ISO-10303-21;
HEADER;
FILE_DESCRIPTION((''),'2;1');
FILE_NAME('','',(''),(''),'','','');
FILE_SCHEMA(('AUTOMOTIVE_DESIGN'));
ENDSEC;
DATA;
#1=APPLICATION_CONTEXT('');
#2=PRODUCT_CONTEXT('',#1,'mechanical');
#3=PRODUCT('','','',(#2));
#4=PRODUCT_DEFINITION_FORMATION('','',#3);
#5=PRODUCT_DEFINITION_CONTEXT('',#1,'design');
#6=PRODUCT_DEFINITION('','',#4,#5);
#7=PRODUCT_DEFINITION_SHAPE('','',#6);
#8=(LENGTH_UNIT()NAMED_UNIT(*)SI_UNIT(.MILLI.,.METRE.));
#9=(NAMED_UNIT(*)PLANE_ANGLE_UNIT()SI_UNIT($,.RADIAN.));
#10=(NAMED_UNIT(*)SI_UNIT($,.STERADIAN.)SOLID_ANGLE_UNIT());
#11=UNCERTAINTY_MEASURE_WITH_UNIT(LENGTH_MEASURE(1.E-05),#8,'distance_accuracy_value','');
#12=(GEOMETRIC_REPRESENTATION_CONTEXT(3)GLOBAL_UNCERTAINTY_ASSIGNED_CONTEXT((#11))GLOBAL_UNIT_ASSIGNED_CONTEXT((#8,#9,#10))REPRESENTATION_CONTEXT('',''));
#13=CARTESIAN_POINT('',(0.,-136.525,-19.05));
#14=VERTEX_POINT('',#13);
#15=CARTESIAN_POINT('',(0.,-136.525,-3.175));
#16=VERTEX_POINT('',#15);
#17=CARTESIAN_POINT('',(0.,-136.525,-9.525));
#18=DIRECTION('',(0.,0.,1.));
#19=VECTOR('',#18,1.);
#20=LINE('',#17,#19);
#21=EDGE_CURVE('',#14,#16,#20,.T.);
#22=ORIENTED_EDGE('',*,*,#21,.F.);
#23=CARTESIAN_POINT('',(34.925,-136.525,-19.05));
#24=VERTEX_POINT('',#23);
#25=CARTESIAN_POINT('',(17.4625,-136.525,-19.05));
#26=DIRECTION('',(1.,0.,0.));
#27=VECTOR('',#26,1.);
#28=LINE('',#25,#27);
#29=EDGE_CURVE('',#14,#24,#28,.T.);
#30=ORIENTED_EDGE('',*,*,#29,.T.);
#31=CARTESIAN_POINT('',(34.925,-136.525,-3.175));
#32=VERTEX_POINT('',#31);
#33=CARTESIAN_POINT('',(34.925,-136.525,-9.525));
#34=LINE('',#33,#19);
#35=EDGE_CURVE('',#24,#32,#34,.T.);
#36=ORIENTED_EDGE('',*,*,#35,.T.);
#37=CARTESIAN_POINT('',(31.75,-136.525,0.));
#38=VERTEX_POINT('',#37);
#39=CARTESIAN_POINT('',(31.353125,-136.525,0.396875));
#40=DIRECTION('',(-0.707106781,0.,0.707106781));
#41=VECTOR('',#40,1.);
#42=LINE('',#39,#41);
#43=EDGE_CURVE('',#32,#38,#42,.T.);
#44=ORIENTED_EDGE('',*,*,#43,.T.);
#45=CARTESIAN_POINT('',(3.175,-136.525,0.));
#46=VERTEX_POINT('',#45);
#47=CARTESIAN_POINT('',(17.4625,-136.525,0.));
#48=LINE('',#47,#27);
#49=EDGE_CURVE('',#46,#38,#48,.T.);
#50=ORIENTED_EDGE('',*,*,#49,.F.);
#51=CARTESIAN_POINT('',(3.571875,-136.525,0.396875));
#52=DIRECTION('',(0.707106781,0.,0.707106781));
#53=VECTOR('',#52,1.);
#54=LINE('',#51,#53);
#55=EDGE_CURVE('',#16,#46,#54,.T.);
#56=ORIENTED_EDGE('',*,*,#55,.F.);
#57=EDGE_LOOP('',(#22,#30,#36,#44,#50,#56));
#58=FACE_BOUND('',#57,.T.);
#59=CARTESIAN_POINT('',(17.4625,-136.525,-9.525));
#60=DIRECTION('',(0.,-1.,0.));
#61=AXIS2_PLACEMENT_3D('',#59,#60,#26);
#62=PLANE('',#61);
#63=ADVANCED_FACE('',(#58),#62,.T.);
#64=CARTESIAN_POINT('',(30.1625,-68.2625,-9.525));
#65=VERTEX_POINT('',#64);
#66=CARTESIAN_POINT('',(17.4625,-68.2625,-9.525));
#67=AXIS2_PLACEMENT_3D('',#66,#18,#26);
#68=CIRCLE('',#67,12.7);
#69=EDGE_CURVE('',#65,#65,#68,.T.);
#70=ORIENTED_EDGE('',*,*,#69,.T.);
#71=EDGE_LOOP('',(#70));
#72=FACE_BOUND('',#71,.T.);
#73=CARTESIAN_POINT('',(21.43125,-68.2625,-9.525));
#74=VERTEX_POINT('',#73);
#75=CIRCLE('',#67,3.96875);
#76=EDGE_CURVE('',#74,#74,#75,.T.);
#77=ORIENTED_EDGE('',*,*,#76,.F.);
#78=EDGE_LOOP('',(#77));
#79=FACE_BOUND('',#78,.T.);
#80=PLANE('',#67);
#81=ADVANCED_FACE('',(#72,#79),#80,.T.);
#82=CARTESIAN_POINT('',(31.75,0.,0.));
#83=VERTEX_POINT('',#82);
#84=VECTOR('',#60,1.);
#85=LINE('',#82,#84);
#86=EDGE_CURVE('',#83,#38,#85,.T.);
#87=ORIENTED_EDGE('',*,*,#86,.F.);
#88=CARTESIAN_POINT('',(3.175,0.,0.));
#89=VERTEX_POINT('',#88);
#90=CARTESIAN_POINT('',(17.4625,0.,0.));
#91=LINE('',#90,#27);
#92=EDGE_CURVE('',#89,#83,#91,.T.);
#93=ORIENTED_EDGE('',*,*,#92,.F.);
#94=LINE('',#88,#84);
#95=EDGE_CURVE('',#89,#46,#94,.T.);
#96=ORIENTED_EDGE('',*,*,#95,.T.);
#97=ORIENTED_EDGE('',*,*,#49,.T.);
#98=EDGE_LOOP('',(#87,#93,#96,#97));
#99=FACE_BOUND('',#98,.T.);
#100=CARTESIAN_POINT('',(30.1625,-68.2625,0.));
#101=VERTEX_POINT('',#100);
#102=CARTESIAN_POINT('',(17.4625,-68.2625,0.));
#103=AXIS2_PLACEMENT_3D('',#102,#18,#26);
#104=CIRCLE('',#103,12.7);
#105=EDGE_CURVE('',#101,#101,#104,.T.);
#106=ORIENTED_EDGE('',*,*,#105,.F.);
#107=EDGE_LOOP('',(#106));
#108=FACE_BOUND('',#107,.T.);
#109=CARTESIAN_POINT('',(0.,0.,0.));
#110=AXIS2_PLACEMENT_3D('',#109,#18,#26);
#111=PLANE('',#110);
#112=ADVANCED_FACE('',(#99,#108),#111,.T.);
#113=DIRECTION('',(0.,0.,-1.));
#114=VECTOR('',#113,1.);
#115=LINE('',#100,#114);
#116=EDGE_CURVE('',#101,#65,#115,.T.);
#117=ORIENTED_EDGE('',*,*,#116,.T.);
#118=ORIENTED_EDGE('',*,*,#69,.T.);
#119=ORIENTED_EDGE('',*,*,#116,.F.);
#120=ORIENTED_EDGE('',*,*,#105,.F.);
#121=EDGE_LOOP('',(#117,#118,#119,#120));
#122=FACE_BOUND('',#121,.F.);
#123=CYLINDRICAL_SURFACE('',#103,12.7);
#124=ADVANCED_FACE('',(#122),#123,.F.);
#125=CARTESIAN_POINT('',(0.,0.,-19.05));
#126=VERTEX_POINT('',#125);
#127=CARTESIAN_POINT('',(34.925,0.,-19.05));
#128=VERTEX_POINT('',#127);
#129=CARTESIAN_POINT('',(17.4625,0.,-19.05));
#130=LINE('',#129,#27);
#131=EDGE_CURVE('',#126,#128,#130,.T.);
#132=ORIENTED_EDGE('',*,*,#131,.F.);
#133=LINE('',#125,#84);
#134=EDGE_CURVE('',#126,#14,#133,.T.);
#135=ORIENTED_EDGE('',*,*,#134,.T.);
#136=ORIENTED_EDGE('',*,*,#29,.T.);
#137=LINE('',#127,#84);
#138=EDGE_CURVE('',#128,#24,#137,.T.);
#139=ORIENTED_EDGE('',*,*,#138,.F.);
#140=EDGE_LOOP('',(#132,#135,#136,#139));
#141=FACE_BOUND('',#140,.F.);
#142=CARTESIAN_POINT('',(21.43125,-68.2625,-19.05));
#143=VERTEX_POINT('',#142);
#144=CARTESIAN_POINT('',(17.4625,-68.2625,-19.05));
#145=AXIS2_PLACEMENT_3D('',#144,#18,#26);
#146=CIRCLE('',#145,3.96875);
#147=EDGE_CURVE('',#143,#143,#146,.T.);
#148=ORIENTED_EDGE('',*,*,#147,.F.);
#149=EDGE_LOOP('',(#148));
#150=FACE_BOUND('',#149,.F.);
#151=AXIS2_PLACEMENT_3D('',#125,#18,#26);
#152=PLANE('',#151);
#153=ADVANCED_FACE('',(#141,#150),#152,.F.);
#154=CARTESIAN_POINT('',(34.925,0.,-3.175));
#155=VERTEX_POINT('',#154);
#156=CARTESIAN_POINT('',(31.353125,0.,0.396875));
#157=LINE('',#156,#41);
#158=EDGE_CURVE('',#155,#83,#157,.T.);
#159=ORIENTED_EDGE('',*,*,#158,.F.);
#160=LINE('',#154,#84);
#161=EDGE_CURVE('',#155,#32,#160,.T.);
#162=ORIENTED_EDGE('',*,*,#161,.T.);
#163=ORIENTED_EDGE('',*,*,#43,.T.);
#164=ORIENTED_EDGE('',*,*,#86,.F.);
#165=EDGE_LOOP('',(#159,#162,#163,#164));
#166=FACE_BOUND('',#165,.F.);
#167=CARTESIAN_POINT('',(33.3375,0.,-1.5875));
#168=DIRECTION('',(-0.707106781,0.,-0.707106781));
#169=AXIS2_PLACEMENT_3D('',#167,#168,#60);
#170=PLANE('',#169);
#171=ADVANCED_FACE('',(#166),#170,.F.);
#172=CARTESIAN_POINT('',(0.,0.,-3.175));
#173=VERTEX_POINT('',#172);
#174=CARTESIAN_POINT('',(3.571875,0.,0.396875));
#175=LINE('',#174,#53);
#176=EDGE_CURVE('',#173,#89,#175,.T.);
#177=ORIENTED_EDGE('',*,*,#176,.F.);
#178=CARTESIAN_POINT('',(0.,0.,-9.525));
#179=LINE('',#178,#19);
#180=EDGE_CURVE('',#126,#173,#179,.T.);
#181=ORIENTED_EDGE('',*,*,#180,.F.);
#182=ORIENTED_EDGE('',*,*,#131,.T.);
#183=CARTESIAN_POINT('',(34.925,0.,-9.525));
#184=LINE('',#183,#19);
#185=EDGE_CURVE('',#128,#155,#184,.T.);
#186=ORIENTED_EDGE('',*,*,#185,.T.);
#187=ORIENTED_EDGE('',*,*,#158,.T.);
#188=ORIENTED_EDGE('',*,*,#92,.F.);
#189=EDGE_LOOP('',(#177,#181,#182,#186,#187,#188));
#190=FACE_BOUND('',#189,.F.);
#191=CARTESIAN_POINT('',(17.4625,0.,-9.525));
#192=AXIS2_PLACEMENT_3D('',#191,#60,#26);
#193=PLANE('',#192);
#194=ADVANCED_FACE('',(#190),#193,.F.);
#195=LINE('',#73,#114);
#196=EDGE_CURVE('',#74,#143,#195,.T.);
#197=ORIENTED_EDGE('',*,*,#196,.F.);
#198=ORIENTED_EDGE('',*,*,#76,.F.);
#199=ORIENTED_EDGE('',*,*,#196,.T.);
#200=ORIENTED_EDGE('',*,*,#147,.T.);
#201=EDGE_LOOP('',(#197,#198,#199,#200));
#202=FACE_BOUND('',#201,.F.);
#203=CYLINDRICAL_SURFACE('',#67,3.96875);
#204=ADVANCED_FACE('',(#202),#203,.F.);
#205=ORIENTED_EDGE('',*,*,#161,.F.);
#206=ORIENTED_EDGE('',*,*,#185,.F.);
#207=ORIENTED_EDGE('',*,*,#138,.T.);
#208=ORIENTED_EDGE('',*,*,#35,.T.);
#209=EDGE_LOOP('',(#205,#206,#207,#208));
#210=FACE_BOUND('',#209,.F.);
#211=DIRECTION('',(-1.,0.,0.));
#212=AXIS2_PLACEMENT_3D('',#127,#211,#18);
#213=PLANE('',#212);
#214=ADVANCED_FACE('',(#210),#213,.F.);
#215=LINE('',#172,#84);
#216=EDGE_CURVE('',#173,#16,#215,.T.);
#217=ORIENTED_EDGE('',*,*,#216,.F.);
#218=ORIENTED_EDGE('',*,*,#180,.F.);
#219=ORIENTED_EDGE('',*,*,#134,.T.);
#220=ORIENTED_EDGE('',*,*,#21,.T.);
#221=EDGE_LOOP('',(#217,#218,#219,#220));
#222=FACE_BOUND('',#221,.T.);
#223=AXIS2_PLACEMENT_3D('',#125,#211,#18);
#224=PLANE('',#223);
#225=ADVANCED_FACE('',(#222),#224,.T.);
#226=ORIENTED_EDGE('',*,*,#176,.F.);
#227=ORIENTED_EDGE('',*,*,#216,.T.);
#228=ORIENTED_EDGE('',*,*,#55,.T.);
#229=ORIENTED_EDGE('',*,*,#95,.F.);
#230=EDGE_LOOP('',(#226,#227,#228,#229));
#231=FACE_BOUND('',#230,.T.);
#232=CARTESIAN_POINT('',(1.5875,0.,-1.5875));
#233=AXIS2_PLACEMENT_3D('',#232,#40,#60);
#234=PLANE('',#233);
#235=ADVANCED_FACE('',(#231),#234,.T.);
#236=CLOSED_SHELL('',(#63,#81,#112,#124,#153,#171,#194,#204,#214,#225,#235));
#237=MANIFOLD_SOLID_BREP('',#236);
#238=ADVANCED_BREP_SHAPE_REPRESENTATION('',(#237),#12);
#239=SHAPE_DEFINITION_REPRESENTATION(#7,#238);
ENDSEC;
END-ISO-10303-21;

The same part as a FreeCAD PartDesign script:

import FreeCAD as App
import Part
import Sketcher

V = App.Vector
Q = App.Units.Quantity


def edges_at(feature, points):
    """Names of the edges that pass closest to the given points."""
    edges = feature.Shape.Edges
    near = lambda p: min(range(len(edges)), key=lambda i: edges[i].distToShape(Part.Vertex(*p))[0])
    return sorted({f"Edge{near(p) + 1}" for p in points})


def add_polygon(sketch, points):
    """Adds a closed chain of lines whose ends are joined by coincident constraints."""
    first, n = sketch.GeometryCount, len(points)
    for a, b in zip(points, points[1:] + points[:1]):
        sketch.addGeometry(Part.LineSegment(App.Vector(*a, 0), App.Vector(*b, 0)), False)
    for i in range(n):
        sketch.addConstraint(Sketcher.Constraint("Coincident", first + i, 2, first + (i + 1) % n, 1))

doc = App.newDocument("Part")
body = doc.addObject("PartDesign::Body", "Body")

# Sketch on XZ plane
sketch1 = body.newObject("Sketcher::SketchObject", "Sketch")
sketch1.AttachmentSupport = (doc.getObject("XZ_Plane"), [""])
sketch1.MapMode = "FlatFace"
add_polygon(sketch1, [(0, 0), (0, -19), (35, -19), (35, 0)])  # lines 0-3
sketch1.addConstraint([
    Sketcher.Constraint("Vertical", 0),
    Sketcher.Constraint("Horizontal", 1),
    Sketcher.Constraint("Vertical", 2),
    Sketcher.Constraint("Horizontal", 3),
    Sketcher.Constraint("Coincident", 3, 2, -1, 1),
    Sketcher.Constraint("DistanceY", 0, 2, 0, 1, Q("0.75 in")),
    Sketcher.Constraint("DistanceX", 1, 1, 1, 2, Q("1.375 in")),
])
pad1 = body.newObject("PartDesign::Pad", "Pad")
pad1.Profile = sketch1
pad1.Length = Q("5.375 in")
doc.recompute()

chamfer = body.newObject("PartDesign::Chamfer", "Chamfer")
chamfer.Base = (pad1, edges_at(pad1, [(34.925, -68.263, 0), (0, -68.263, 0)]))
chamfer.Size = Q("0.125 in")

# Sketch on XY plane
sketch2 = body.newObject("Sketcher::SketchObject", "Sketch001")
sketch2.AttachmentSupport = (doc.getObject("XY_Plane"), [""])
sketch2.MapMode = "FlatFace"
sketch2.addGeometry(Part.Circle(V(17, -68, 0), V(0, 0, 1), 13), False)
sketch2.addConstraint([
    Sketcher.Constraint("Diameter", 0, Q("1 in")),
    Sketcher.Constraint("DistanceX", -1, 1, 0, 3, Q("0.6875 in")),
    Sketcher.Constraint("DistanceY", 0, 3, -1, 1, Q("2.6875 in")),
])
pocket1 = body.newObject("PartDesign::Pocket", "Pocket")
pocket1.Profile = sketch2
pocket1.Length = Q("0.375 in")

# Sketch on XY plane
sketch3 = body.newObject("Sketcher::SketchObject", "Sketch002")
sketch3.AttachmentSupport = (doc.getObject("XY_Plane"), [""])
sketch3.MapMode = "FlatFace"
sketch3.AttachmentOffset = App.Placement(V(0, 0, -0.375 * 25.4), App.Rotation())
sketch3.addGeometry(Part.Circle(V(17.5, -68.3, 0), V(0, 0, 1), 4), False)
sketch3.addConstraint([
    Sketcher.Constraint("Diameter", 0, Q("0.3125 in")),
    Sketcher.Constraint("DistanceX", -1, 1, 0, 3, Q("0.6875 in")),
    Sketcher.Constraint("DistanceY", 0, 3, -1, 1, Q("2.6875 in")),
])
pocket2 = body.newObject("PartDesign::Pocket", "Pocket001")
pocket2.Profile = sketch3
pocket2.Length = Q("10 in")

doc.recompute()
